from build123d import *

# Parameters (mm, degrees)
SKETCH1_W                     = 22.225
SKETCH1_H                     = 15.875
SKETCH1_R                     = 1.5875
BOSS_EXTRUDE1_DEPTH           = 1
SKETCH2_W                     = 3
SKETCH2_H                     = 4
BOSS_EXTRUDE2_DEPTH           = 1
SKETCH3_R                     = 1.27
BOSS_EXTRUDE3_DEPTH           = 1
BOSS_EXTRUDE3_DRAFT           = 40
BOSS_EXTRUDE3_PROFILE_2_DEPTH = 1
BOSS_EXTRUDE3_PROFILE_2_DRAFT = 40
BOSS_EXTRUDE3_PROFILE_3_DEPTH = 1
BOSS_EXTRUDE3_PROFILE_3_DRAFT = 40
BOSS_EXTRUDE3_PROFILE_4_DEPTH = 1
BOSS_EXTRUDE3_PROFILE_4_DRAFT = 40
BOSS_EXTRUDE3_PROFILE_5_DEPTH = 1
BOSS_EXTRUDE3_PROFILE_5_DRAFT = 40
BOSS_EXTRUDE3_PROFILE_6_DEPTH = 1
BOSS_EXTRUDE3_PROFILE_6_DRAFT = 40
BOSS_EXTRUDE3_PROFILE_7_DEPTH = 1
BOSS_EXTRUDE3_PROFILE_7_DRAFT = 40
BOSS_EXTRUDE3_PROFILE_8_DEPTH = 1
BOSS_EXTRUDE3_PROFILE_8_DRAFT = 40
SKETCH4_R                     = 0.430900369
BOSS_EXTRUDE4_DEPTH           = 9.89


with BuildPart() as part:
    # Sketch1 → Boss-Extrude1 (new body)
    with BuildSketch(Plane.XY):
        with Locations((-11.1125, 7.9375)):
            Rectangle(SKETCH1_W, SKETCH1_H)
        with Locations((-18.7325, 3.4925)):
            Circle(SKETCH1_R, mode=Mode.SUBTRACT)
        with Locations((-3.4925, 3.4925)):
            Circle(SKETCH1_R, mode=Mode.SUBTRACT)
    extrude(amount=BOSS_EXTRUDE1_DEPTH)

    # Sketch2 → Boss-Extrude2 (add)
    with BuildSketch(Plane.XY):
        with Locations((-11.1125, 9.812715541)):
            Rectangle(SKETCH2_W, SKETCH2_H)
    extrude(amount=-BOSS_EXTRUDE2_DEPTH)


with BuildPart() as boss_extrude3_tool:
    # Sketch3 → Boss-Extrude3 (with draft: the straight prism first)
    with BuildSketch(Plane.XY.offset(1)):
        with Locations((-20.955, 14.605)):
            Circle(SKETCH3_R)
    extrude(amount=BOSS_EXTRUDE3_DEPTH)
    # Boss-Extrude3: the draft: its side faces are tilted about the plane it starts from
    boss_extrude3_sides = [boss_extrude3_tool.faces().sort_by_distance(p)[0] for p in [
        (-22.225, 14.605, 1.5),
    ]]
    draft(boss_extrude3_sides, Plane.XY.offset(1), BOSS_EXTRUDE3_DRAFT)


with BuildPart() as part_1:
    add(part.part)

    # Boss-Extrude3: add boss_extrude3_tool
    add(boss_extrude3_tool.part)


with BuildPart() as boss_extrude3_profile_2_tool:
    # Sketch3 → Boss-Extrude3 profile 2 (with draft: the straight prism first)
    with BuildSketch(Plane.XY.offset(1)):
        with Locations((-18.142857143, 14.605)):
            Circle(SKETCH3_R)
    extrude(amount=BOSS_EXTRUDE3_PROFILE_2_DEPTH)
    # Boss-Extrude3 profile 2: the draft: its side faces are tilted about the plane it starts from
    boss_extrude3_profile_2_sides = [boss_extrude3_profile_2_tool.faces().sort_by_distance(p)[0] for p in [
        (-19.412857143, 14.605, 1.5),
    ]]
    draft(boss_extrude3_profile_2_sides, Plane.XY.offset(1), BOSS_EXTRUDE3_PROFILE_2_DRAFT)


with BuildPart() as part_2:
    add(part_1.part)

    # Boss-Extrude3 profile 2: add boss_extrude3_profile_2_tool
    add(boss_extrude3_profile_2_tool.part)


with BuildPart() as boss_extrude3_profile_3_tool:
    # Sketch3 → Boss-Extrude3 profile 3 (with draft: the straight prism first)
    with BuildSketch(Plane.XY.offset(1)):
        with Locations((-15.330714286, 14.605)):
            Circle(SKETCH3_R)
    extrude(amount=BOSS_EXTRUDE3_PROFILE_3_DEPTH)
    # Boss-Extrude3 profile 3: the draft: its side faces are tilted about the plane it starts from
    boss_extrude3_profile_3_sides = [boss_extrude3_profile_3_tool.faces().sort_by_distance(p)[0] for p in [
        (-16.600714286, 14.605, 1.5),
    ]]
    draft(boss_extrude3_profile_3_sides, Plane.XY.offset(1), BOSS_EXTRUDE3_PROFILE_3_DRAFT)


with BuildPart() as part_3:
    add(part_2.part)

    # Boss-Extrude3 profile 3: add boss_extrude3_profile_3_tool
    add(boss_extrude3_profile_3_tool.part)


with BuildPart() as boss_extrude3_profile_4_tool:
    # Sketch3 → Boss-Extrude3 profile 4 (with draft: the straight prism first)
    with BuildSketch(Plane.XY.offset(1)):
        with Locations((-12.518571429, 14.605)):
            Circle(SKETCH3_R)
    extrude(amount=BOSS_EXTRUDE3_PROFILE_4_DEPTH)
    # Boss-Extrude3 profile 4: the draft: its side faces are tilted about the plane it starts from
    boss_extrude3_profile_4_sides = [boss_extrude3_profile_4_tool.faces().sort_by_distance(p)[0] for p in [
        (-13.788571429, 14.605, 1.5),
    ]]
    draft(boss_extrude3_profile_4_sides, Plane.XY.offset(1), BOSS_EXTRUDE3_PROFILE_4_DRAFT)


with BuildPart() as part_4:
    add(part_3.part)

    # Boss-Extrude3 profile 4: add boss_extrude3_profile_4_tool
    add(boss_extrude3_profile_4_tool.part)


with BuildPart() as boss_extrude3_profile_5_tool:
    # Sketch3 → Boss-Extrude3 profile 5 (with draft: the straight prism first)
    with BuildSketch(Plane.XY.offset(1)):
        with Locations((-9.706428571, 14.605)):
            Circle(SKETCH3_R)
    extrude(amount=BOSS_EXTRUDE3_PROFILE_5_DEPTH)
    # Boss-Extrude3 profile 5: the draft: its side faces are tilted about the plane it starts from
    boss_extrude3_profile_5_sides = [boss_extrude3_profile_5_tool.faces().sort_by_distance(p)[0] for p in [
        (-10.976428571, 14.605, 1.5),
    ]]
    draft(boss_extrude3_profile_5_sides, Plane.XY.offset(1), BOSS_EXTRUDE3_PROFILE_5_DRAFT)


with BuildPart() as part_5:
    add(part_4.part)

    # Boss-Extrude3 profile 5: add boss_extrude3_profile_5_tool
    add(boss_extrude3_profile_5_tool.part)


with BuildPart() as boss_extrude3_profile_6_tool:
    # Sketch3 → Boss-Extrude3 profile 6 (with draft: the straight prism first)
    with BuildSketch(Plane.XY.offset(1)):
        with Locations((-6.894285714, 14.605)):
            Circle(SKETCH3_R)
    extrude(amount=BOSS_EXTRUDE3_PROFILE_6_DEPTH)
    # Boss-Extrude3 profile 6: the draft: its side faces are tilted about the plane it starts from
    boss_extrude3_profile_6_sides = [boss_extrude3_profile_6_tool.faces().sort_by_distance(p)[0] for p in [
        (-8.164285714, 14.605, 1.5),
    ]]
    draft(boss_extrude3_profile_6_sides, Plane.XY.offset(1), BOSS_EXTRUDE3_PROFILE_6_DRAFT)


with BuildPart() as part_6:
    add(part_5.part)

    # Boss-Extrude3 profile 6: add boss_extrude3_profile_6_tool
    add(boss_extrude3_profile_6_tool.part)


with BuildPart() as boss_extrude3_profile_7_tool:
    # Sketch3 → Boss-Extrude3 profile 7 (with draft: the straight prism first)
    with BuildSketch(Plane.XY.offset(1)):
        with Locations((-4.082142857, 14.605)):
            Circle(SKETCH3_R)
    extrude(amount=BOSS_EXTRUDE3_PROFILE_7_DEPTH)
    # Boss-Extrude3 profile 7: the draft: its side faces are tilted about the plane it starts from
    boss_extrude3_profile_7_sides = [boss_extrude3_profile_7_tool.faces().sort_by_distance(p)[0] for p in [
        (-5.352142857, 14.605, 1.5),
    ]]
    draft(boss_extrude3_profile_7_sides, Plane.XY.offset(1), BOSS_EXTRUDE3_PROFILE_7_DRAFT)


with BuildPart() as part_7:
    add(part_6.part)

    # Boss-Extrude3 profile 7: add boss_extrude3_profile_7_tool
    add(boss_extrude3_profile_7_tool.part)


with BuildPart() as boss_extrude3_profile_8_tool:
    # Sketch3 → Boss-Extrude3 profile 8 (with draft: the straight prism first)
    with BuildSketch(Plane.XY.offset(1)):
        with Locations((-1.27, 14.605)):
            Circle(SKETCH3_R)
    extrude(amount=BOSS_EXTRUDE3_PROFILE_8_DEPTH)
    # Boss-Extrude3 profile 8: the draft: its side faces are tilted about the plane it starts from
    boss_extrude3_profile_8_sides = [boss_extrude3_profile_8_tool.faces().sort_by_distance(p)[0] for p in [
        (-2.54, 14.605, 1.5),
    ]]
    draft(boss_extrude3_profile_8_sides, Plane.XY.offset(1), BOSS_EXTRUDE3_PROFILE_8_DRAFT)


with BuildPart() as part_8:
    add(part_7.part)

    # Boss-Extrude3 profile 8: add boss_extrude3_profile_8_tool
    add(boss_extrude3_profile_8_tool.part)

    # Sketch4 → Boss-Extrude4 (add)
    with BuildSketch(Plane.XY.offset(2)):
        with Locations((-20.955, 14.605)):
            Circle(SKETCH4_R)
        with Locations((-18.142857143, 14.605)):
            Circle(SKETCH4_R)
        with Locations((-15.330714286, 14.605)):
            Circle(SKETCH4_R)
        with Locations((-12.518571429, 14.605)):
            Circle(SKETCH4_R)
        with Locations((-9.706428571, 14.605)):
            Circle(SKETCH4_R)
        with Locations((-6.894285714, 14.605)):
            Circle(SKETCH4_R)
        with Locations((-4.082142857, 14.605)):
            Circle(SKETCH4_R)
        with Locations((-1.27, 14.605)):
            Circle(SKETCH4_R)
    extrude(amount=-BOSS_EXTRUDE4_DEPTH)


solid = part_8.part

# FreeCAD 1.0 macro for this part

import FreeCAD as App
import Part
import Sketcher
from FreeCAD import Vector
Q = App.Units.Quantity


def faces_at(feature, points):
    """Names of the faces that lie closest to the given points."""
    faces = feature.Shape.Faces
    near = lambda p: min(range(len(faces)), key=lambda i: faces[i].distToShape(Part.Vertex(*p))[0])
    return sorted({f"Face{near(p) + 1}" for p in points})


def add_polygon(sketch, points):
    """Adds a closed chain of lines whose ends are joined by coincident constraints."""
    first, n = sketch.GeometryCount, len(points)
    for a, b in zip(points, points[1:] + points[:1]):
        sketch.addGeometry(Part.LineSegment(App.Vector(*a, 0), App.Vector(*b, 0)), False)
    for i in range(n):
        sketch.addConstraint(Sketcher.Constraint("Coincident", first + i, 2, first + (i + 1) % n, 1))

doc = App.newDocument("Part")
body = doc.addObject("PartDesign::Body", "Body")

# Sketch on XY plane
sketch1 = doc.addObject("Sketcher::SketchObject", "Sketch")
body.addObject(sketch1)
sketch1.AttachmentSupport = (doc.XY_Plane, [""])
sketch1.MapMode = "FlatFace"
add_polygon(sketch1, [(-22.225, 15.875), (-22.225, 0), (0, 0), (0, 15.875)])  # lines 0-3
sketch1.addGeometry(Part.Circle(Vector(-18.7325, 3.4925, 0), Vector(0, 0, 1), 1.5875), False)  # 4
sketch1.addGeometry(Part.Circle(Vector(-3.4925, 3.4925, 0), Vector(0, 0, 1), 1.5875), False)  # 5
sketch1.addConstraint(Sketcher.Constraint("Vertical", 0))
sketch1.addConstraint(Sketcher.Constraint("Horizontal", 1))
sketch1.addConstraint(Sketcher.Constraint("Vertical", 2))
sketch1.addConstraint(Sketcher.Constraint("Horizontal", 3))
sketch1.addConstraint(Sketcher.Constraint("Coincident", 1, 2, -1, 1))
sketch1.addConstraint(Sketcher.Constraint("Equal", 4, 5))
sketch1.addConstraint(Sketcher.Constraint("Horizontal", 4, 3, 5, 3))
sketch1.addConstraint(Sketcher.Constraint("Diameter", 4, Q("0.125 in")))
sketch1.addConstraint(Sketcher.Constraint("DistanceX", 4, 3, 5, 3, Q("0.6 in")))
sketch1.addConstraint(Sketcher.Constraint("DistanceX", 1, 1, 1, 2, Q("0.875 in")))
sketch1.addConstraint(Sketcher.Constraint("DistanceY", 0, 2, 0, 1, Q("0.625 in")))
sketch1.addConstraint(Sketcher.Constraint("DistanceX", 4, 3, -1, 1, Q("0.7375 in")))
sketch1.addConstraint(Sketcher.Constraint("DistanceY", -1, 1, 4, 3, Q("0.1375 in")))
pad1 = doc.addObject("PartDesign::Pad", "Pad")
body.addObject(pad1)
pad1.Profile = sketch1
pad1.Length = 1

# Sketch on XY plane
sketch2 = doc.addObject("Sketcher::SketchObject", "Sketch001")
body.addObject(sketch2)
sketch2.AttachmentSupport = (doc.XY_Plane, [""])
sketch2.MapMode = "FlatFace"
add_polygon(sketch2, [(-12.6125, 11.812716), (-12.6125, 7.812716), (-9.6125, 7.812716), (-9.6125, 11.812716)])  # lines 0-3
sketch2.addConstraint(Sketcher.Constraint("Vertical", 0))
sketch2.addConstraint(Sketcher.Constraint("Horizontal", 1))
sketch2.addConstraint(Sketcher.Constraint("Vertical", 2))
sketch2.addConstraint(Sketcher.Constraint("Horizontal", 3))
sketch2.addConstraint(Sketcher.Constraint("DistanceX", 1, 1, 1, 2, Q("3 mm")))
sketch2.addConstraint(Sketcher.Constraint("DistanceY", 0, 2, 0, 1, Q("4 mm")))
sketch2.addConstraint(Sketcher.Constraint("DistanceX", 0, 2, -1, 1, Q("12.6125 mm")))
sketch2.addConstraint(Sketcher.Constraint("DistanceY", -1, 1, 0, 2, Q("7.812716 mm")))
pad2 = doc.addObject("PartDesign::Pad", "Pad001")
body.addObject(pad2)
pad2.Profile = sketch2
pad2.Length = 1
pad2.Reversed = True
body2 = doc.addObject("PartDesign::Body", "Body001")

# Sketch on XY plane
sketch3 = doc.addObject("Sketcher::SketchObject", "Sketch002")
body2.addObject(sketch3)
sketch3.AttachmentSupport = (doc.getObject("XY_Plane001"), [""])
sketch3.MapMode = "FlatFace"
sketch3.AttachmentOffset = App.Placement(Vector(0, 0, 1), App.Rotation())
sketch3.addGeometry(Part.Circle(Vector(-20.955, 14.605, 0), Vector(0, 0, 1), 1.27), False)
sketch3.addConstraint(Sketcher.Constraint("Diameter", 0, Q("0.1 in")))
sketch3.addConstraint(Sketcher.Constraint("DistanceX", 0, 3, -1, 1, Q("0.825 in")))
sketch3.addConstraint(Sketcher.Constraint("DistanceY", -1, 1, 0, 3, Q("0.575 in")))
pad3 = doc.addObject("PartDesign::Pad", "Pad002")
body2.addObject(pad3)
pad3.Profile = sketch3
pad3.Length = 1
doc.recompute()

datumplane = doc.addObject("PartDesign::Plane", "DatumPlane")
body2.addObject(datumplane)
datumplane.AttachmentSupport = (doc.getObject("XY_Plane001"), [""])
datumplane.MapMode = "FlatFace"
datumplane.AttachmentOffset = App.Placement(Vector(0, 0, 1), App.Rotation())
draft = doc.addObject("PartDesign::Draft", "Draft")
body2.addObject(draft)
draft.Base = (pad3, faces_at(pad3, [(-22.225, 14.605, 1.5)]))
draft.NeutralPlane = (datumplane, [""])
draft.Angle = 40
draft.Reversed = False
doc.recompute()

boolean = doc.addObject("PartDesign::Boolean", "Boolean")
body.addObject(boolean)
boolean.Type = "Fuse"
boolean.addObjects([body2])
body3 = doc.addObject("PartDesign::Body", "Body002")

# Sketch on XY plane
sketch4 = doc.addObject("Sketcher::SketchObject", "Sketch003")
body3.addObject(sketch4)
sketch4.AttachmentSupport = (doc.getObject("XY_Plane002"), [""])
sketch4.MapMode = "FlatFace"
sketch4.AttachmentOffset = App.Placement(Vector(0, 0, 1), App.Rotation())
sketch4.addGeometry(Part.Circle(Vector(-18.142857, 14.605, 0), Vector(0, 0, 1), 1.27), False)
sketch4.addConstraint(Sketcher.Constraint("Diameter", 0, Q("0.1 in")))
sketch4.addConstraint(Sketcher.Constraint("DistanceY", -1, 1, 0, 3, Q("0.575 in")))
sketch4.addConstraint(Sketcher.Constraint("DistanceX", 0, 3, -1, 1, Q("18.142857 mm")))
pad4 = doc.addObject("PartDesign::Pad", "Pad003")
body3.addObject(pad4)
pad4.Profile = sketch4
pad4.Length = 1
doc.recompute()

datumplane2 = doc.addObject("PartDesign::Plane", "DatumPlane001")
body3.addObject(datumplane2)
datumplane2.AttachmentSupport = (doc.getObject("XY_Plane002"), [""])
datumplane2.MapMode = "FlatFace"
datumplane2.AttachmentOffset = App.Placement(Vector(0, 0, 1), App.Rotation())
draft2 = doc.addObject("PartDesign::Draft", "Draft001")
body3.addObject(draft2)
draft2.Base = (pad4, faces_at(pad4, [(-19.413, 14.605, 1.5)]))
draft2.NeutralPlane = (datumplane2, [""])
draft2.Angle = 40
draft2.Reversed = False
doc.recompute()

boolean2 = doc.addObject("PartDesign::Boolean", "Boolean001")
body.addObject(boolean2)
boolean2.Type = "Fuse"
boolean2.addObjects([body3])
body4 = doc.addObject("PartDesign::Body", "Body003")

# Sketch on XY plane
sketch5 = doc.addObject("Sketcher::SketchObject", "Sketch004")
body4.addObject(sketch5)
sketch5.AttachmentSupport = (doc.getObject("XY_Plane003"), [""])
sketch5.MapMode = "FlatFace"
sketch5.AttachmentOffset = App.Placement(Vector(0, 0, 1), App.Rotation())
sketch5.addGeometry(Part.Circle(Vector(-15.330714, 14.605, 0), Vector(0, 0, 1), 1.27), False)
sketch5.addConstraint(Sketcher.Constraint("Diameter", 0, Q("0.1 in")))
sketch5.addConstraint(Sketcher.Constraint("DistanceY", -1, 1, 0, 3, Q("0.575 in")))
sketch5.addConstraint(Sketcher.Constraint("DistanceX", 0, 3, -1, 1, Q("15.330714 mm")))
pad5 = doc.addObject("PartDesign::Pad", "Pad004")
body4.addObject(pad5)
pad5.Profile = sketch5
pad5.Length = 1
doc.recompute()

datumplane3 = doc.addObject("PartDesign::Plane", "DatumPlane002")
body4.addObject(datumplane3)
datumplane3.AttachmentSupport = (doc.getObject("XY_Plane003"), [""])
datumplane3.MapMode = "FlatFace"
datumplane3.AttachmentOffset = App.Placement(Vector(0, 0, 1), App.Rotation())
draft3 = doc.addObject("PartDesign::Draft", "Draft002")
body4.addObject(draft3)
draft3.Base = (pad5, faces_at(pad5, [(-16.601, 14.605, 1.5)]))
draft3.NeutralPlane = (datumplane3, [""])
draft3.Angle = 40
draft3.Reversed = False
doc.recompute()

boolean3 = doc.addObject("PartDesign::Boolean", "Boolean002")
body.addObject(boolean3)
boolean3.Type = "Fuse"
boolean3.addObjects([body4])
body5 = doc.addObject("PartDesign::Body", "Body004")

# Sketch on XY plane
sketch6 = doc.addObject("Sketcher::SketchObject", "Sketch005")
body5.addObject(sketch6)
sketch6.AttachmentSupport = (doc.getObject("XY_Plane004"), [""])
sketch6.MapMode = "FlatFace"
sketch6.AttachmentOffset = App.Placement(Vector(0, 0, 1), App.Rotation())
sketch6.addGeometry(Part.Circle(Vector(-12.518571, 14.605, 0), Vector(0, 0, 1), 1.27), False)
sketch6.addConstraint(Sketcher.Constraint("Diameter", 0, Q("0.1 in")))
sketch6.addConstraint(Sketcher.Constraint("DistanceY", -1, 1, 0, 3, Q("0.575 in")))
sketch6.addConstraint(Sketcher.Constraint("DistanceX", 0, 3, -1, 1, Q("12.518571 mm")))
pad6 = doc.addObject("PartDesign::Pad", "Pad005")
body5.addObject(pad6)
pad6.Profile = sketch6
pad6.Length = 1
doc.recompute()

datumplane4 = doc.addObject("PartDesign::Plane", "DatumPlane003")
body5.addObject(datumplane4)
datumplane4.AttachmentSupport = (doc.getObject("XY_Plane004"), [""])
datumplane4.MapMode = "FlatFace"
datumplane4.AttachmentOffset = App.Placement(Vector(0, 0, 1), App.Rotation())
draft4 = doc.addObject("PartDesign::Draft", "Draft003")
body5.addObject(draft4)
draft4.Base = (pad6, faces_at(pad6, [(-13.789, 14.605, 1.5)]))
draft4.NeutralPlane = (datumplane4, [""])
draft4.Angle = 40
draft4.Reversed = False
doc.recompute()

boolean4 = doc.addObject("PartDesign::Boolean", "Boolean003")
body.addObject(boolean4)
boolean4.Type = "Fuse"
boolean4.addObjects([body5])
body6 = doc.addObject("PartDesign::Body", "Body005")

# Sketch on XY plane
sketch7 = doc.addObject("Sketcher::SketchObject", "Sketch006")
body6.addObject(sketch7)
sketch7.AttachmentSupport = (doc.getObject("XY_Plane005"), [""])
sketch7.MapMode = "FlatFace"
sketch7.AttachmentOffset = App.Placement(Vector(0, 0, 1), App.Rotation())
sketch7.addGeometry(Part.Circle(Vector(-9.706429, 14.605, 0), Vector(0, 0, 1), 1.27), False)
sketch7.addConstraint(Sketcher.Constraint("Diameter", 0, Q("0.1 in")))
sketch7.addConstraint(Sketcher.Constraint("DistanceY", -1, 1, 0, 3, Q("0.575 in")))
sketch7.addConstraint(Sketcher.Constraint("DistanceX", 0, 3, -1, 1, Q("9.706429 mm")))
pad7 = doc.addObject("PartDesign::Pad", "Pad006")
body6.addObject(pad7)
pad7.Profile = sketch7
pad7.Length = 1
doc.recompute()

datumplane5 = doc.addObject("PartDesign::Plane", "DatumPlane004")
body6.addObject(datumplane5)
datumplane5.AttachmentSupport = (doc.getObject("XY_Plane005"), [""])
datumplane5.MapMode = "FlatFace"
datumplane5.AttachmentOffset = App.Placement(Vector(0, 0, 1), App.Rotation())
draft5 = doc.addObject("PartDesign::Draft", "Draft004")
body6.addObject(draft5)
draft5.Base = (pad7, faces_at(pad7, [(-10.976, 14.605, 1.5)]))
draft5.NeutralPlane = (datumplane5, [""])
draft5.Angle = 40
draft5.Reversed = False
doc.recompute()

boolean5 = doc.addObject("PartDesign::Boolean", "Boolean004")
body.addObject(boolean5)
boolean5.Type = "Fuse"
boolean5.addObjects([body6])
body7 = doc.addObject("PartDesign::Body", "Body006")

# Sketch on XY plane
sketch8 = doc.addObject("Sketcher::SketchObject", "Sketch007")
body7.addObject(sketch8)
sketch8.AttachmentSupport = (doc.getObject("XY_Plane006"), [""])
sketch8.MapMode = "FlatFace"
sketch8.AttachmentOffset = App.Placement(Vector(0, 0, 1), App.Rotation())
sketch8.addGeometry(Part.Circle(Vector(-6.894286, 14.605, 0), Vector(0, 0, 1), 1.27), False)
sketch8.addConstraint(Sketcher.Constraint("Diameter", 0, Q("0.1 in")))
sketch8.addConstraint(Sketcher.Constraint("DistanceY", -1, 1, 0, 3, Q("0.575 in")))
sketch8.addConstraint(Sketcher.Constraint("DistanceX", 0, 3, -1, 1, Q("6.894286 mm")))
pad8 = doc.addObject("PartDesign::Pad", "Pad007")
body7.addObject(pad8)
pad8.Profile = sketch8
pad8.Length = 1
doc.recompute()

datumplane6 = doc.addObject("PartDesign::Plane", "DatumPlane005")
body7.addObject(datumplane6)
datumplane6.AttachmentSupport = (doc.getObject("XY_Plane006"), [""])
datumplane6.MapMode = "FlatFace"
datumplane6.AttachmentOffset = App.Placement(Vector(0, 0, 1), App.Rotation())
draft6 = doc.addObject("PartDesign::Draft", "Draft005")
body7.addObject(draft6)
draft6.Base = (pad8, faces_at(pad8, [(-8.164, 14.605, 1.5)]))
draft6.NeutralPlane = (datumplane6, [""])
draft6.Angle = 40
draft6.Reversed = False
doc.recompute()

boolean6 = doc.addObject("PartDesign::Boolean", "Boolean005")
body.addObject(boolean6)
boolean6.Type = "Fuse"
boolean6.addObjects([body7])
body8 = doc.addObject("PartDesign::Body", "Body007")

# Sketch on XY plane
sketch9 = doc.addObject("Sketcher::SketchObject", "Sketch008")
body8.addObject(sketch9)
sketch9.AttachmentSupport = (doc.getObject("XY_Plane007"), [""])
sketch9.MapMode = "FlatFace"
sketch9.AttachmentOffset = App.Placement(Vector(0, 0, 1), App.Rotation())
sketch9.addGeometry(Part.Circle(Vector(-4.082143, 14.605, 0), Vector(0, 0, 1), 1.27), False)
sketch9.addConstraint(Sketcher.Constraint("Diameter", 0, Q("0.1 in")))
sketch9.addConstraint(Sketcher.Constraint("DistanceY", -1, 1, 0, 3, Q("0.575 in")))
sketch9.addConstraint(Sketcher.Constraint("DistanceX", 0, 3, -1, 1, Q("4.082143 mm")))
pad9 = doc.addObject("PartDesign::Pad", "Pad008")
body8.addObject(pad9)
pad9.Profile = sketch9
pad9.Length = 1
doc.recompute()

datumplane7 = doc.addObject("PartDesign::Plane", "DatumPlane006")
body8.addObject(datumplane7)
datumplane7.AttachmentSupport = (doc.getObject("XY_Plane007"), [""])
datumplane7.MapMode = "FlatFace"
datumplane7.AttachmentOffset = App.Placement(Vector(0, 0, 1), App.Rotation())
draft7 = doc.addObject("PartDesign::Draft", "Draft006")
body8.addObject(draft7)
draft7.Base = (pad9, faces_at(pad9, [(-5.352, 14.605, 1.5)]))
draft7.NeutralPlane = (datumplane7, [""])
draft7.Angle = 40
draft7.Reversed = False
doc.recompute()

boolean7 = doc.addObject("PartDesign::Boolean", "Boolean006")
body.addObject(boolean7)
boolean7.Type = "Fuse"
boolean7.addObjects([body8])
body9 = doc.addObject("PartDesign::Body", "Body008")

# Sketch on XY plane
sketch10 = doc.addObject("Sketcher::SketchObject", "Sketch009")
body9.addObject(sketch10)
sketch10.AttachmentSupport = (doc.getObject("XY_Plane008"), [""])
sketch10.MapMode = "FlatFace"
sketch10.AttachmentOffset = App.Placement(Vector(0, 0, 1), App.Rotation())
sketch10.addGeometry(Part.Circle(Vector(-1.27, 14.605, 0), Vector(0, 0, 1), 1.27), False)
sketch10.addConstraint(Sketcher.Constraint("Diameter", 0, Q("0.1 in")))
sketch10.addConstraint(Sketcher.Constraint("DistanceX", 0, 3, -1, 1, Q("0.05 in")))
sketch10.addConstraint(Sketcher.Constraint("DistanceY", -1, 1, 0, 3, Q("0.575 in")))
pad10 = doc.addObject("PartDesign::Pad", "Pad009")
body9.addObject(pad10)
pad10.Profile = sketch10
pad10.Length = 1
doc.recompute()

datumplane8 = doc.addObject("PartDesign::Plane", "DatumPlane007")
body9.addObject(datumplane8)
datumplane8.AttachmentSupport = (doc.getObject("XY_Plane008"), [""])
datumplane8.MapMode = "FlatFace"
datumplane8.AttachmentOffset = App.Placement(Vector(0, 0, 1), App.Rotation())
draft8 = doc.addObject("PartDesign::Draft", "Draft007")
body9.addObject(draft8)
draft8.Base = (pad10, faces_at(pad10, [(-2.54, 14.605, 1.5)]))
draft8.NeutralPlane = (datumplane8, [""])
draft8.Angle = 40
draft8.Reversed = False
doc.recompute()

boolean8 = doc.addObject("PartDesign::Boolean", "Boolean007")
body.addObject(boolean8)
boolean8.Type = "Fuse"
boolean8.addObjects([body9])

# Sketch on XY plane
sketch11 = doc.addObject("Sketcher::SketchObject", "Sketch010")
body.addObject(sketch11)
sketch11.AttachmentSupport = (doc.XY_Plane, [""])
sketch11.MapMode = "FlatFace"
sketch11.AttachmentOffset = App.Placement(Vector(0, 0, 2), App.Rotation())
sketch11.addGeometry(Part.Circle(Vector(-20.955, 14.605, 0), Vector(0, 0, 1), 0.4309), False)
sketch11.addGeometry(Part.Circle(Vector(-18.142857, 14.605, 0), Vector(0, 0, 1), 0.4309), False)
sketch11.addGeometry(Part.Circle(Vector(-15.330714, 14.605, 0), Vector(0, 0, 1), 0.4309), False)
sketch11.addGeometry(Part.Circle(Vector(-12.518571, 14.605, 0), Vector(0, 0, 1), 0.4309), False)
sketch11.addGeometry(Part.Circle(Vector(-9.706429, 14.605, 0), Vector(0, 0, 1), 0.4309), False)
sketch11.addGeometry(Part.Circle(Vector(-6.894286, 14.605, 0), Vector(0, 0, 1), 0.4309), False)
sketch11.addGeometry(Part.Circle(Vector(-4.082143, 14.605, 0), Vector(0, 0, 1), 0.4309), False)
sketch11.addGeometry(Part.Circle(Vector(-1.27, 14.605, 0), Vector(0, 0, 1), 0.4309), False)
sketch11.addConstraint(Sketcher.Constraint("Equal", 0, 1))
sketch11.addConstraint(Sketcher.Constraint("Equal", 1, 2))
sketch11.addConstraint(Sketcher.Constraint("Equal", 2, 3))
sketch11.addConstraint(Sketcher.Constraint("Equal", 3, 4))
sketch11.addConstraint(Sketcher.Constraint("Equal", 4, 5))
sketch11.addConstraint(Sketcher.Constraint("Equal", 5, 6))
sketch11.addConstraint(Sketcher.Constraint("Equal", 6, 7))
sketch11.addConstraint(Sketcher.Constraint("Horizontal", 0, 3, 1, 3))
sketch11.addConstraint(Sketcher.Constraint("Horizontal", 1, 3, 2, 3))
sketch11.addConstraint(Sketcher.Constraint("Horizontal", 2, 3, 3, 3))
sketch11.addConstraint(Sketcher.Constraint("Horizontal", 3, 3, 4, 3))
sketch11.addConstraint(Sketcher.Constraint("Horizontal", 4, 3, 5, 3))
sketch11.addConstraint(Sketcher.Constraint("Horizontal", 5, 3, 6, 3))
sketch11.addConstraint(Sketcher.Constraint("Horizontal", 6, 3, 7, 3))
sketch11.addConstraint(Sketcher.Constraint("Diameter", 0, Q("0.861801 mm")))
sketch11.addConstraint(Sketcher.Constraint("DistanceX", 7, 3, -1, 1, Q("0.05 in")))
sketch11.addConstraint(Sketcher.Constraint("DistanceX", 0, 3, -1, 1, Q("0.825 in")))
sketch11.addConstraint(Sketcher.Constraint("DistanceY", -1, 1, 0, 3, Q("0.575 in")))
sketch11.addConstraint(Sketcher.Constraint("DistanceX", 3, 3, -1, 1, Q("12.518571 mm")))
sketch11.addConstraint(Sketcher.Constraint("DistanceX", 4, 3, -1, 1, Q("9.706429 mm")))
sketch11.addConstraint(Sketcher.Constraint("DistanceX", 1, 3, 4, 3, Q("8.436429 mm")))
sketch11.addConstraint(Sketcher.Constraint("DistanceX", 2, 3, 5, 3, Q("8.436429 mm")))
sketch11.addConstraint(Sketcher.Constraint("DistanceX", 1, 3, 5, 3, Q("11.248571 mm")))
sketch11.addConstraint(Sketcher.Constraint("DistanceX", 3, 3, 6, 3, Q("8.436429 mm")))
pad11 = doc.addObject("PartDesign::Pad", "Pad010")
body.addObject(pad11)
pad11.Profile = sketch11
pad11.Length = 9.89
pad11.Reversed = True

doc.recompute()
